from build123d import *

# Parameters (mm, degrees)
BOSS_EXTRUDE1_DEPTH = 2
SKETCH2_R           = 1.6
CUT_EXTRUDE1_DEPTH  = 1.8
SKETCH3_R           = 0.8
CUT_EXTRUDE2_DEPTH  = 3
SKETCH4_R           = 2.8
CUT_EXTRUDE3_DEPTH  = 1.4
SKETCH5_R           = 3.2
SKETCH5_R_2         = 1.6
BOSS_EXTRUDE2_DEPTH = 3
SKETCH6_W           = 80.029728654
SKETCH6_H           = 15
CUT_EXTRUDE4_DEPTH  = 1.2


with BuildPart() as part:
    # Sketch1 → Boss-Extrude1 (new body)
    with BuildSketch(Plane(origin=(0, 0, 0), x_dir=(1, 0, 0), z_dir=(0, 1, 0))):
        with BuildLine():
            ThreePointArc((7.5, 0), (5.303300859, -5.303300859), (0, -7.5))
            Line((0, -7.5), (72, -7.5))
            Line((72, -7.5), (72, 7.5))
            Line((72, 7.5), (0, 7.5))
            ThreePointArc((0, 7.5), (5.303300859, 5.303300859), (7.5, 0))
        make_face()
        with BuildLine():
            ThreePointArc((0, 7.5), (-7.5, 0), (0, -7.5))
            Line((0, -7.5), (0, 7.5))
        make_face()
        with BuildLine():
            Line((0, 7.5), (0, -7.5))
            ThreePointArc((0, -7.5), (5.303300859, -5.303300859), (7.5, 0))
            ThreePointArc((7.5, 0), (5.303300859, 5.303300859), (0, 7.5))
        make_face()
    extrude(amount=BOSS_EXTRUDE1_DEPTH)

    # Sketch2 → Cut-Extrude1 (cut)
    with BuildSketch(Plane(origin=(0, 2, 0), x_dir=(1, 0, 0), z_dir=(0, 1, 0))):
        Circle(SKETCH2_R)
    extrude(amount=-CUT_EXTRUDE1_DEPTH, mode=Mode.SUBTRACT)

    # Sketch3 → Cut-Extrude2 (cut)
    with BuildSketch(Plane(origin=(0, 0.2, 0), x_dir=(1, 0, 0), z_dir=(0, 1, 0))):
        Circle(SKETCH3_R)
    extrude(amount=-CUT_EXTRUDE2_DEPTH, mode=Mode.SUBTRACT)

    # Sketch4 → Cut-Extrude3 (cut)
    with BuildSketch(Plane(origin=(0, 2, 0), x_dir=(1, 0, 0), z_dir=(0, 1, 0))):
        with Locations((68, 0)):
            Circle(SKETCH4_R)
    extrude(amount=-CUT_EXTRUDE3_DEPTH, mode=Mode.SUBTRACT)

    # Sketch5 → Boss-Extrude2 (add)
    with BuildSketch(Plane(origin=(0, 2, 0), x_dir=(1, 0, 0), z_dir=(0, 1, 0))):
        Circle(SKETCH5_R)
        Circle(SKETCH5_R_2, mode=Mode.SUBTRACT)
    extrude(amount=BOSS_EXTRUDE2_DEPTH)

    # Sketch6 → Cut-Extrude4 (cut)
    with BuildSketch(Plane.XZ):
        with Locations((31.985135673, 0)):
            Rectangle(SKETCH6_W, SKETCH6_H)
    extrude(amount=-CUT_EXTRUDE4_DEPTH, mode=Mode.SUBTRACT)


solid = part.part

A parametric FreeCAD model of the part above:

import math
import FreeCAD as App
import Part
import Sketcher

doc = App.newDocument("Part")
params = doc.addObject("Spreadsheet::Sheet", "Params")
for row, (alias, value) in enumerate([
    ("sketch1_radius", "7.5 mm"),
    ("sketch1_width", "72 mm"),
    ("pad1_length", "2 mm"),
    ("sketch2_diameter", "3.2 mm"),
    ("pocket1_length", "1.8 mm"),
    ("sketch3_diameter", "1.6 mm"),
    ("pocket2_length", "3 mm"),
    ("sketch4_diameter", "5.6 mm"),
    ("pocket3_length", "1.4 mm"),
    ("sketch5_diameter", "6.4 mm"),
    ("sketch5_diameter2", "3.2 mm"),
    ("pad2_length", "3 mm"),
    ("sketch6_height", "15 mm"),
    ("pocket4_length", "1.2 mm"),
], start=1):
    params.set(f"A{row}", alias)
    params.set(f"B{row}", "=" + value)
    params.setAlias(f"B{row}", alias)

body = doc.addObject("PartDesign::Body", "Body")

# Sketch on XZ plane
sketch1 = doc.addObject("Sketcher::SketchObject", "Sketch")
body.addObject(sketch1)
sketch1.AttachmentSupport = (doc.XZ_Plane, [""])
sketch1.MapMode = "FlatFace"
sketch1.addGeometry(Part.LineSegment(App.Vector(72, 8, 0), App.Vector(72, -8, 0)), False)
sketch1.addGeometry(Part.LineSegment(App.Vector(72, -8, 0), App.Vector(0, -8, 0)), False)
sketch1.addGeometry(Part.ArcOfCircle(Part.Circle(App.Vector(0, 0, 0), App.Vector(0, 0, 1), 8), math.radians(90), math.radians(270)), False)
sketch1.addGeometry(Part.LineSegment(App.Vector(0, 8, 0), App.Vector(72, 8, 0)), False)
sketch1.addConstraint(Sketcher.Constraint("Coincident", 0, 2, 1, 1))
sketch1.addConstraint(Sketcher.Constraint("Tangent", 1, 2, 2, 2))
sketch1.addConstraint(Sketcher.Constraint("Tangent", 2, 1, 3, 1))
sketch1.addConstraint(Sketcher.Constraint("Coincident", 3, 2, 0, 1))
sketch1.addConstraint(Sketcher.Constraint("Vertical", 0))
sketch1.addConstraint(Sketcher.Constraint("Horizontal", 1))
sketch1.addConstraint(Sketcher.Constraint("Horizontal", 3))
sketch1.addConstraint(Sketcher.Constraint("Coincident", 2, 3, -1, 1))
sketch1.addConstraint(Sketcher.Constraint("Radius", 2, 7.5))
sketch1.addConstraint(Sketcher.Constraint("DistanceX", 1, 2, 1, 1, 72.0))
sketch1.setExpression("Constraints[8]", "Params.sketch1_radius")
sketch1.setExpression("Constraints[9]", "Params.sketch1_width")
pad1 = doc.addObject("PartDesign::Pad", "Pad")
body.addObject(pad1)
pad1.Profile = sketch1
pad1.setExpression("Length", "Params.pad1_length")
pad1.Reversed = True

# Sketch on XZ plane
sketch2 = doc.addObject("Sketcher::SketchObject", "Sketch001")
body.addObject(sketch2)
sketch2.AttachmentSupport = (doc.XZ_Plane, [""])
sketch2.MapMode = "FlatFace"
sketch2.AttachmentOffset = App.Placement(App.Vector(0, 0, -2), App.Rotation())
sketch2.addGeometry(Part.Circle(App.Vector(0, 0, 0), App.Vector(0, 0, 1), 1.6), False)
sketch2.addConstraint(Sketcher.Constraint("Coincident", 0, 3, -1, 1))
sketch2.addConstraint(Sketcher.Constraint("Diameter", 0, 3.2))
sketch2.setExpression("Constraints[1]", "Params.sketch2_diameter")
pocket1 = doc.addObject("PartDesign::Pocket", "Pocket")
body.addObject(pocket1)
pocket1.Profile = sketch2
pocket1.setExpression("Length", "Params.pocket1_length")
pocket1.Reversed = True

# Sketch on XZ plane
sketch3 = doc.addObject("Sketcher::SketchObject", "Sketch002")
body.addObject(sketch3)
sketch3.AttachmentSupport = (doc.XZ_Plane, [""])
sketch3.MapMode = "FlatFace"
sketch3.AttachmentOffset = App.Placement(App.Vector(0, 0, -0.2), App.Rotation())
sketch3.addGeometry(Part.Circle(App.Vector(0, 0, 0), App.Vector(0, 0, 1), 0.8), False)
sketch3.addConstraint(Sketcher.Constraint("Coincident", 0, 3, -1, 1))
sketch3.addConstraint(Sketcher.Constraint("Diameter", 0, 1.6))
sketch3.setExpression("Constraints[1]", "Params.sketch3_diameter")
pocket2 = doc.addObject("PartDesign::Pocket", "Pocket001")
body.addObject(pocket2)
pocket2.Profile = sketch3
pocket2.setExpression("Length", "Params.pocket2_length")
pocket2.Reversed = True

# Sketch on XZ plane
sketch4 = doc.addObject("Sketcher::SketchObject", "Sketch003")
body.addObject(sketch4)
sketch4.AttachmentSupport = (doc.XZ_Plane, [""])
sketch4.MapMode = "FlatFace"
sketch4.AttachmentOffset = App.Placement(App.Vector(0, 0, -2), App.Rotation())
sketch4.addGeometry(Part.Circle(App.Vector(68, 0, 0), App.Vector(0, 0, 1), 2.8), False)
sketch4.addConstraint(Sketcher.Constraint("PointOnObject", 0, 3, -1))
sketch4.addConstraint(Sketcher.Constraint("Diameter", 0, 5.6))
sketch4.addConstraint(Sketcher.Constraint("DistanceX", -1, 1, 0, 3, 68.0))
sketch4.setExpression("Constraints[1]", "Params.sketch4_diameter")
pocket3 = doc.addObject("PartDesign::Pocket", "Pocket002")
body.addObject(pocket3)
pocket3.Profile = sketch4
pocket3.setExpression("Length", "Params.pocket3_length")
pocket3.Reversed = True

# Sketch on XZ plane
sketch5 = doc.addObject("Sketcher::SketchObject", "Sketch004")
body.addObject(sketch5)
sketch5.AttachmentSupport = (doc.XZ_Plane, [""])
sketch5.MapMode = "FlatFace"
sketch5.AttachmentOffset = App.Placement(App.Vector(0, 0, -2), App.Rotation())
sketch5.addGeometry(Part.Circle(App.Vector(0, 0, 0), App.Vector(0, 0, 1), 3.2), False)
sketch5.addGeometry(Part.Circle(App.Vector(0, 0, 0), App.Vector(0, 0, 1), 1.6), False)
sketch5.addConstraint(Sketcher.Constraint("Coincident", 0, 3, -1, 1))
sketch5.addConstraint(Sketcher.Constraint("Coincident", 1, 3, -1, 1))
sketch5.addConstraint(Sketcher.Constraint("Diameter", 0, 6.4))
sketch5.addConstraint(Sketcher.Constraint("Diameter", 1, 3.2))
sketch5.setExpression("Constraints[2]", "Params.sketch5_diameter")
sketch5.setExpression("Constraints[3]", "Params.sketch5_diameter2")
pad2 = doc.addObject("PartDesign::Pad", "Pad001")
body.addObject(pad2)
pad2.Profile = sketch5
pad2.setExpression("Length", "Params.pad2_length")
pad2.Reversed = True

# Sketch on XZ plane
sketch6 = doc.addObject("Sketcher::SketchObject", "Sketch005")
body.addObject(sketch6)
sketch6.AttachmentSupport = (doc.XZ_Plane, [""])
sketch6.MapMode = "FlatFace"
sketch6.addGeometry(Part.LineSegment(App.Vector(-8, 8, 0), App.Vector(-8, -8, 0)), False)
sketch6.addGeometry(Part.LineSegment(App.Vector(-8, -8, 0), App.Vector(72, -8, 0)), False)
sketch6.addGeometry(Part.LineSegment(App.Vector(72, -8, 0), App.Vector(72, 8, 0)), False)
sketch6.addGeometry(Part.LineSegment(App.Vector(72, 8, 0), App.Vector(-8, 8, 0)), False)
sketch6.addConstraint(Sketcher.Constraint("Coincident", 0, 2, 1, 1))
sketch6.addConstraint(Sketcher.Constraint("Coincident", 1, 2, 2, 1))
sketch6.addConstraint(Sketcher.Constraint("Coincident", 2, 2, 3, 1))
sketch6.addConstraint(Sketcher.Constraint("Coincident", 3, 2, 0, 1))
sketch6.addConstraint(Sketcher.Constraint("Vertical", 0))
sketch6.addConstraint(Sketcher.Constraint("Horizontal", 1))
sketch6.addConstraint(Sketcher.Constraint("Vertical", 2))
sketch6.addConstraint(Sketcher.Constraint("Horizontal", 3))
sketch6.addConstraint(Sketcher.Constraint("DistanceY", 0, 2, 0, 1, 15.0))
sketch6.addConstraint(Sketcher.Constraint("DistanceX", -1, 1, 1, 2, 72.0))
sketch6.addConstraint(Sketcher.Constraint("DistanceY", 0, 2, -1, 1, 7.5))
sketch6.addConstraint(Sketcher.Constraint("DistanceX", 1, 1, 1, 2, 80.029729))
sketch6.setExpression("Constraints[8]", "Params.sketch6_height")
pocket4 = doc.addObject("PartDesign::Pocket", "Pocket003")
body.addObject(pocket4)
pocket4.Profile = sketch6
pocket4.setExpression("Length", "Params.pocket4_length")

doc.recompute()
